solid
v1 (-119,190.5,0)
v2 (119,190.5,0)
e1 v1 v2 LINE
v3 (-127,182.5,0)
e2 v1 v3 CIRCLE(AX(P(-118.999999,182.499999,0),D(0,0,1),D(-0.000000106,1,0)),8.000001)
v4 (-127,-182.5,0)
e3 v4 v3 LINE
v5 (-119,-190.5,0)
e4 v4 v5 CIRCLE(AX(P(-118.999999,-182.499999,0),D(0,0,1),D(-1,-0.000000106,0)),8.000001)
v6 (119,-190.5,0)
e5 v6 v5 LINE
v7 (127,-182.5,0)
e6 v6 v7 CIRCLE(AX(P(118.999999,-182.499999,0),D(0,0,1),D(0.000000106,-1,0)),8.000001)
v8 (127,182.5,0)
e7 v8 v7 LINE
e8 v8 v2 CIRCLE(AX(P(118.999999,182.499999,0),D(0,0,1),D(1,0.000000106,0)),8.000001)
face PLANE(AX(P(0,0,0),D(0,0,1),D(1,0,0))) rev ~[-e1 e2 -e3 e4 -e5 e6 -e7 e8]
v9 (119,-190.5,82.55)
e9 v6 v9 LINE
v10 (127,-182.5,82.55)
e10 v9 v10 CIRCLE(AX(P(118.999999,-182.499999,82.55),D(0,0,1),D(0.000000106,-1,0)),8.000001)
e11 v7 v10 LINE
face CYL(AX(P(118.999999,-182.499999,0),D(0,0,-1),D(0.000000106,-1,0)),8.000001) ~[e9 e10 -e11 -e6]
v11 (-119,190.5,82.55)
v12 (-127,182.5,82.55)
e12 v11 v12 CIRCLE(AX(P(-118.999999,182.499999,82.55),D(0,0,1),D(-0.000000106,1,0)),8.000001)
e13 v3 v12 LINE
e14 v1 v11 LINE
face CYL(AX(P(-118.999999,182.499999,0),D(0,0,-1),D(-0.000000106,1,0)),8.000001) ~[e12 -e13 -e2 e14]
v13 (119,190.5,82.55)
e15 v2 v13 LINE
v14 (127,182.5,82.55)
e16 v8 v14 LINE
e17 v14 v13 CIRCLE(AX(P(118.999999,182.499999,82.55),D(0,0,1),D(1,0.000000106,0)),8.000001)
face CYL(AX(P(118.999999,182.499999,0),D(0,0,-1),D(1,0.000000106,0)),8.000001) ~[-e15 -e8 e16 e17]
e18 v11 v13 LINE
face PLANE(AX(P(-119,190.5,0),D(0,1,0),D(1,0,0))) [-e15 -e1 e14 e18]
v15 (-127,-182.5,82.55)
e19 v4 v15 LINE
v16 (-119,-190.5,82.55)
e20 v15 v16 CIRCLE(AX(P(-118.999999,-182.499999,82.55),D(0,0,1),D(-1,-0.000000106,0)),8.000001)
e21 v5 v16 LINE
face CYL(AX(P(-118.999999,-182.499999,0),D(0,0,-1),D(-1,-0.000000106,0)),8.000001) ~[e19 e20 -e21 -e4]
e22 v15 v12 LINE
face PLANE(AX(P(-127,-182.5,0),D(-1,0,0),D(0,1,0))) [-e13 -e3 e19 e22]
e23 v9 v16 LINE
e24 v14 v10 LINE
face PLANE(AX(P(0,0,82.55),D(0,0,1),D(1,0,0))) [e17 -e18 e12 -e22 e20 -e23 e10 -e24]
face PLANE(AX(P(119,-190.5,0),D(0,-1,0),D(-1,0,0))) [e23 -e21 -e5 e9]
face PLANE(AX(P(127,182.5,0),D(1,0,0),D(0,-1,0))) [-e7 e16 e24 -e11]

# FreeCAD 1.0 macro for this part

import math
import FreeCAD as App
import Part
import Sketcher

doc = App.newDocument("Part")
params = doc.addObject("Spreadsheet::Sheet", "Params")
for row, (alias, value) in enumerate([
    ("sketch1_radius", "8.000001 mm"),
    ("sketch1_width", "238 mm"),
    ("sketch1_height", "365 mm"),
    ("pad1_length", "82.55 mm"),
], start=1):
    params.set(f"A{row}", alias)
    params.set(f"B{row}", "=" + value)
    params.setAlias(f"B{row}", alias)

body = doc.addObject("PartDesign::Body", "Body")

# Sketch on XY plane
sketch1 = body.newObject("Sketcher::SketchObject", "Sketch")
sketch1.AttachmentSupport = (doc.getObject("XY_Plane"), [""])
sketch1.MapMode = "FlatFace"
sketch1.addGeometry(Part.ArcOfCircle(Part.Circle(App.Vector(-119, 182, 0), App.Vector(0, 0, 1), 8), math.radians(90), math.radians(180)), False)
sketch1.addGeometry(Part.LineSegment(App.Vector(-127, 182, 0), App.Vector(-127, -182, 0)), False)
sketch1.addGeometry(Part.ArcOfCircle(Part.Circle(App.Vector(-119, -182, 0), App.Vector(0, 0, 1), 8), math.radians(-180), math.radians(-90)), False)
sketch1.addGeometry(Part.LineSegment(App.Vector(-119, -190, 0), App.Vector(119, -190, 0)), False)
sketch1.addGeometry(Part.ArcOfCircle(Part.Circle(App.Vector(119, -182, 0), App.Vector(0, 0, 1), 8), math.radians(-90), math.radians(0)), False)
sketch1.addGeometry(Part.LineSegment(App.Vector(127, -182, 0), App.Vector(127, 182, 0)), False)
sketch1.addGeometry(Part.ArcOfCircle(Part.Circle(App.Vector(119, 182, 0), App.Vector(0, 0, 1), 8), math.radians(0), math.radians(90)), False)
sketch1.addGeometry(Part.LineSegment(App.Vector(119, 190, 0), App.Vector(-119, 190, 0)), False)
sketch1.addConstraint(Sketcher.Constraint("Tangent", 0, 2, 1, 1))
sketch1.addConstraint(Sketcher.Constraint("Tangent", 1, 2, 2, 1))
sketch1.addConstraint(Sketcher.Constraint("Tangent", 2, 2, 3, 1))
sketch1.addConstraint(Sketcher.Constraint("Tangent", 3, 2, 4, 1))
sketch1.addConstraint(Sketcher.Constraint("Tangent", 4, 2, 5, 1))
sketch1.addConstraint(Sketcher.Constraint("Tangent", 5, 2, 6, 1))
sketch1.addConstraint(Sketcher.Constraint("Tangent", 6, 2, 7, 1))
sketch1.addConstraint(Sketcher.Constraint("Tangent", 7, 2, 0, 1))
sketch1.addConstraint(Sketcher.Constraint("Vertical", 1))
sketch1.addConstraint(Sketcher.Constraint("Horizontal", 3))
sketch1.addConstraint(Sketcher.Constraint("Vertical", 5))
sketch1.addConstraint(Sketcher.Constraint("Horizontal", 7))
sketch1.addConstraint(Sketcher.Constraint("Equal", 0, 2))
sketch1.addConstraint(Sketcher.Constraint("Equal", 2, 4))
sketch1.addConstraint(Sketcher.Constraint("Equal", 4, 6))
sketch1.addConstraint(Sketcher.Constraint("Symmetric", 0, 3, 4, 3, -1, 1))
sketch1.addConstraint(Sketcher.Constraint("Radius", 0, 8.000001))
sketch1.addConstraint(Sketcher.Constraint("DistanceX", 3, 1, 3, 2, 238.0))
sketch1.addConstraint(Sketcher.Constraint("DistanceY", 1, 2, 1, 1, 365.0))
sketch1.setExpression("Constraints[16]", "Params.sketch1_radius")
sketch1.setExpression("Constraints[17]", "Params.sketch1_width")
sketch1.setExpression("Constraints[18]", "Params.sketch1_height")
pad1 = body.newObject("PartDesign::Pad", "Pad")
pad1.Profile = sketch1
pad1.setExpression("Length", "Params.pad1_length")

doc.recompute()
